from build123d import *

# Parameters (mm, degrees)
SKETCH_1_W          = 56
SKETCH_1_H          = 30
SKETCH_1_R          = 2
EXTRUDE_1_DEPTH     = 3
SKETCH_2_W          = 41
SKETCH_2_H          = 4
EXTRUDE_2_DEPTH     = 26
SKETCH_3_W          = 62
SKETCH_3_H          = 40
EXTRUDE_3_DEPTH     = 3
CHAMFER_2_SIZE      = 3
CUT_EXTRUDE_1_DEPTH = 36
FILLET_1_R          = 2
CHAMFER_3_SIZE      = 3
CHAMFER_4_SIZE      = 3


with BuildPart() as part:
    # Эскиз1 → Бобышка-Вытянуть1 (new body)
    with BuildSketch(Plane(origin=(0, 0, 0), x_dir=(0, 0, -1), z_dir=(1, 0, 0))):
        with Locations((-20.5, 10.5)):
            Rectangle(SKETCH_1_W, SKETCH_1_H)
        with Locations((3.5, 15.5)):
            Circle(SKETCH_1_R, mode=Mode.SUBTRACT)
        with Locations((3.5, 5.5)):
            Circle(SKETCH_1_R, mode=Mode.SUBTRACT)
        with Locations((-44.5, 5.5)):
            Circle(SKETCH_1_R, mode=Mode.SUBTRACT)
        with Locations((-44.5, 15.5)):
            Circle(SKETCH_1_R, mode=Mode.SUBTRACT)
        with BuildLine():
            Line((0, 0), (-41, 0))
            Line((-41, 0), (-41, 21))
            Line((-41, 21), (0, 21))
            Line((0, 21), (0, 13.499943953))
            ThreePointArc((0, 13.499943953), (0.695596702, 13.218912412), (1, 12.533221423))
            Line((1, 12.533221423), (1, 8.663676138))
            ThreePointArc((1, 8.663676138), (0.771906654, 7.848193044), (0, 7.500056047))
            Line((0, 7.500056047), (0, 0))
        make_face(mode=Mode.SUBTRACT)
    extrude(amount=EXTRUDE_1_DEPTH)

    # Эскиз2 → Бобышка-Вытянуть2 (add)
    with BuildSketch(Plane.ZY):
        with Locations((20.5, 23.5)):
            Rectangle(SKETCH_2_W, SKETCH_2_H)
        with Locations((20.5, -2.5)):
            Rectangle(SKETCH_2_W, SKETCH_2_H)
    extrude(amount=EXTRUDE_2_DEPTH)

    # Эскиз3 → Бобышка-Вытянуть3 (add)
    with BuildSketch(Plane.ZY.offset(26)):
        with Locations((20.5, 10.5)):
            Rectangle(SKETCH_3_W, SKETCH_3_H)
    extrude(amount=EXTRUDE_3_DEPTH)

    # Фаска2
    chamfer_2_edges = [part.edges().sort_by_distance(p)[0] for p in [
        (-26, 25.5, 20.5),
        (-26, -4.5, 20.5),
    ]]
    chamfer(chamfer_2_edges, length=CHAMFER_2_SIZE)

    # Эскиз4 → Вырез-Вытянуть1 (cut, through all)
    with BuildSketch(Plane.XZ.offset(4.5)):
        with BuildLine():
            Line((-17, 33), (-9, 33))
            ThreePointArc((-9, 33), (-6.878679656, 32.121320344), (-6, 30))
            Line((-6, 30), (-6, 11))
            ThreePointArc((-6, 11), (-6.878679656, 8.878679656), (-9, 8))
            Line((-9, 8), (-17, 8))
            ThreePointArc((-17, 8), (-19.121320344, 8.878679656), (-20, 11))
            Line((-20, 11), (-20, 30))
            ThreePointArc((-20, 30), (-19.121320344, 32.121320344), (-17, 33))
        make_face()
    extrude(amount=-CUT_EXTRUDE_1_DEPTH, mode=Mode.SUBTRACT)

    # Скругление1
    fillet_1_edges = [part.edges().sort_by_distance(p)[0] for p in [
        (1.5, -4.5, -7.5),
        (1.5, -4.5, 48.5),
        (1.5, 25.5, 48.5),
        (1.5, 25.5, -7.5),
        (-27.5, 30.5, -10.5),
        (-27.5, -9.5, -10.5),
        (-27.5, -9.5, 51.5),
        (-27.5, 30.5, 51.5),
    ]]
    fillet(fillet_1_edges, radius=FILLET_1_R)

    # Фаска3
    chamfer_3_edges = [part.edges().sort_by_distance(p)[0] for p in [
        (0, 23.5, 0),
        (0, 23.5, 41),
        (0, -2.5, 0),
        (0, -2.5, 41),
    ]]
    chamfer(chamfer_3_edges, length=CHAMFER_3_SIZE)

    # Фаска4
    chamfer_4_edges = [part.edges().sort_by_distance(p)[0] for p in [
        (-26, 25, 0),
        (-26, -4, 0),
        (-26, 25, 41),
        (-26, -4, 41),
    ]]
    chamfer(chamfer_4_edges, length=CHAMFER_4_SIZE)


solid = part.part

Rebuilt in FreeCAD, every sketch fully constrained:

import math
import FreeCAD as App
import Part
import Sketcher
from FreeCAD import Vector
Q = App.Units.Quantity


def edges_at(feature, points):
    """Names of the edges that pass closest to the given points."""
    edges = feature.Shape.Edges
    near = lambda p: min(range(len(edges)), key=lambda i: edges[i].distToShape(Part.Vertex(*p))[0])
    return sorted({f"Edge{near(p) + 1}" for p in points})


def add_polygon(sketch, points):
    """Adds a closed chain of lines whose ends are joined by coincident constraints."""
    first, n = sketch.GeometryCount, len(points)
    for a, b in zip(points, points[1:] + points[:1]):
        sketch.addGeometry(Part.LineSegment(App.Vector(*a, 0), App.Vector(*b, 0)), False)
    for i in range(n):
        sketch.addConstraint(Sketcher.Constraint("Coincident", first + i, 2, first + (i + 1) % n, 1))

doc = App.newDocument("Part")
params = doc.addObject("Spreadsheet::Sheet", "Params")
for row, (alias, value) in enumerate([
    ("sketch1_diameter", "4 mm"),
    ("sketch1_radius", "1 mm"),
    ("sketch1_width", "30 mm"),
    ("sketch1_width2", "21 mm"),
    ("sketch1_height", "56 mm"),
    ("pad1_length", "3 mm"),
    ("sketch2_width", "4 mm"),
    ("sketch2_height", "41 mm"),
    ("pad2_length", "26 mm"),
    ("sketch3_width", "40 mm"),
    ("sketch3_height", "62 mm"),
    ("pad3_length", "3 mm"),
    ("chamfer_size", "3 mm"),
    ("sketch4_radius", "3 mm"),
    ("sketch4_width", "8 mm"),
    ("sketch4_height", "19 mm"),
    ("fillet_radius", "2 mm"),
    ("chamfer2_size", "3 mm"),
    ("chamfer3_size", "3 mm"),
], start=1):
    params.set(f"A{row}", alias)
    params.set(f"B{row}", "=" + value)
    params.setAlias(f"B{row}", alias)

body = doc.addObject("PartDesign::Body", "Body")

sketch1 = body.newObject("Sketcher::SketchObject", "Sketch")
sketch1.AttachmentSupport = (doc.getObject("YZ_Plane"), [""])
sketch1.MapMode = "FlatFace"
add_polygon(sketch1, [(25.5, 48.5), (-4.5, 48.5), (-4.5, -7.5), (25.5, -7.5)])
sketch1.addGeometry(Part.Circle(Vector(5.5, 44.5, 0), Vector(0, 0, 1), 2), False)
sketch1.addGeometry(Part.Circle(Vector(5.5, -3.5, 0), Vector(0, 0, 1), 2), False)
sketch1.addGeometry(Part.Circle(Vector(15.5, 44.5, 0), Vector(0, 0, 1), 2), False)
sketch1.addGeometry(Part.LineSegment(Vector(7.5, 0, 0), Vector(0, 0, 0)), False)
sketch1.addGeometry(Part.LineSegment(Vector(0, 0, 0), Vector(0, 41, 0)), False)
sketch1.addGeometry(Part.LineSegment(Vector(0, 41, 0), Vector(21, 41, 0)), False)
sketch1.addGeometry(Part.LineSegment(Vector(21, 41, 0), Vector(21, 0, 0)), False)
sketch1.addGeometry(Part.LineSegment(Vector(21, 0, 0), Vector(13.5, 0, 0)), False)
sketch1.addGeometry(Part.ArcOfCircle(Part.Circle(Vector(12.5, 0, 0), Vector(0, 0, 1), 1), math.radians(-88), math.radians(0)), False)
sketch1.addGeometry(Part.LineSegment(Vector(12.5, -1, 0), Vector(8.7, -1, 0)), False)
sketch1.addGeometry(Part.ArcOfCircle(Part.Circle(Vector(8.5, 0, 0), Vector(0, 0, 1), 1), math.radians(179), math.radians(279)), False)
sketch1.addGeometry(Part.Circle(Vector(15.5, -3.5, 0), Vector(0, 0, 1), 2), False)
sketch1.addConstraint([
    Sketcher.Constraint("Coincident", 7, 2, 8, 1),
    Sketcher.Constraint("Coincident", 8, 2, 9, 1),
    Sketcher.Constraint("Coincident", 9, 2, 10, 1),
    Sketcher.Constraint("Coincident", 10, 2, 11, 1),
    Sketcher.Constraint("Coincident", 11, 2, 12, 2),
    Sketcher.Constraint("Coincident", 12, 1, 13, 1),
    Sketcher.Constraint("Coincident", 13, 2, 14, 2),
    Sketcher.Constraint("Coincident", 14, 1, 7, 1),
    Sketcher.Constraint("Horizontal", 0),
    Sketcher.Constraint("Vertical", 1),
    Sketcher.Constraint("Horizontal", 2),
    Sketcher.Constraint("Vertical", 3),
    Sketcher.Constraint("Horizontal", 7),
    Sketcher.Constraint("Vertical", 8),
    Sketcher.Constraint("Horizontal", 9),
    Sketcher.Constraint("Vertical", 10),
    Sketcher.Constraint("Horizontal", 11),
    Sketcher.Constraint("Horizontal", 13),
    Sketcher.Constraint("Coincident", 7, 2, -1, 1),
    Sketcher.Constraint("Equal", 4, 5),
    Sketcher.Constraint("Equal", 5, 6),
    Sketcher.Constraint("Equal", 12, 14),
    Sketcher.Constraint("Equal", 6, 15),
    Sketcher.Constraint("PointOnObject", 10, 2, -1),
    Sketcher.Constraint("Horizontal", 4, 3, 6, 3),
    Sketcher.Constraint("Horizontal", 5, 3, 15, 3),
    Sketcher.Constraint("Vertical", 4, 3, 5, 3),
    Sketcher.Constraint("Vertical", 6, 3, 15, 3),
    Sketcher.Constraint("Equal", 7, 11),
    Sketcher.Constraint("Diameter", 4, Q("4 mm")),
    Sketcher.Constraint("Radius", 12, Q("1 mm")),
    Sketcher.Constraint("DistanceX", 0, 2, 0, 1, Q("30 mm")),
    Sketcher.Constraint("DistanceX", 9, 1, 9, 2, Q("21 mm")),
    Sketcher.Constraint("DistanceY", 1, 2, 1, 1, Q("56 mm")),
    Sketcher.Constraint("DistanceY", 8, 1, 8, 2, Q("41 mm")),
    Sketcher.Constraint("DistanceY", 12, 1, -1, 1, Q("1 mm")),
    Sketcher.Constraint("DistanceY", 5, 3, 4, 3, Q("48 mm")),
    Sketcher.Constraint("DistanceX", 4, 3, 6, 3, Q("10 mm")),
    Sketcher.Constraint("DistanceX", 0, 2, 4, 3, Q("10 mm")),
    Sketcher.Constraint("DistanceY", 4, 3, 0, 2, Q("4 mm")),
    Sketcher.Constraint("DistanceX", -1, 1, 4, 3, Q("5.5 mm")),
    Sketcher.Constraint("DistanceY", -1, 1, 4, 3, Q("44.5 mm")),
    Sketcher.Constraint("DistanceX", 7, 2, 7, 1, Q("7.500056 mm")),
    Sketcher.Constraint("DistanceX", 13, 2, 13, 1, Q("3.869545 mm")),
    Sketcher.Constraint("DistanceY", 14, 3, -1, 1, Q("0.013492 mm")),
])
sketch1.setExpression("Constraints[33]", "Params.sketch1_diameter")
sketch1.setExpression("Constraints[34]", "Params.sketch1_radius")
sketch1.setExpression("Constraints[35]", "Params.sketch1_width")
sketch1.setExpression("Constraints[36]", "Params.sketch1_width2")
sketch1.setExpression("Constraints[37]", "Params.sketch1_height")
pad1 = body.newObject("PartDesign::Pad", "Pad")
pad1.Profile = sketch1
pad1.setExpression("Length", "Params.pad1_length")

sketch2 = body.newObject("Sketcher::SketchObject", "Sketch001")
sketch2.AttachmentSupport = (doc.getObject("YZ_Plane"), [""])
sketch2.MapMode = "FlatFace"
add_polygon(sketch2, [(25.5, 0), (21.5, 0), (21.5, 41), (25.5, 41)])
add_polygon(sketch2, [(-0.5, 0), (-4.5, 0), (-4.5, 41), (-0.5, 41)])
sketch2.addConstraint([
    Sketcher.Constraint("Horizontal", 0),
    Sketcher.Constraint("Vertical", 1),
    Sketcher.Constraint("Horizontal", 2),
    Sketcher.Constraint("Vertical", 3),
    Sketcher.Constraint("Horizontal", 4),
    Sketcher.Constraint("Vertical", 5),
    Sketcher.Constraint("Horizontal", 6),
    Sketcher.Constraint("Vertical", 7),
    Sketcher.Constraint("PointOnObject", 0, 2, -1),
    Sketcher.Constraint("PointOnObject", 4, 2, -1),
    Sketcher.Constraint("Horizontal", 2, 2, 5, 2),
    Sketcher.Constraint("Equal", 2, 4),
    Sketcher.Constraint("DistanceX", 0, 2, 0, 1, Q("4 mm")),
    Sketcher.Constraint("DistanceY", 1, 1, 1, 2, Q("41 mm")),
    Sketcher.Constraint("DistanceX", 4, 2, 0, 2, Q("26 mm")),
    Sketcher.Constraint("DistanceX", -1, 1, 0, 2, Q("21.5 mm")),
])
sketch2.setExpression("Constraints[20]", "Params.sketch2_width")
sketch2.setExpression("Constraints[21]", "Params.sketch2_height")
pad2 = body.newObject("PartDesign::Pad", "Pad001")
pad2.Profile = sketch2
pad2.setExpression("Length", "Params.pad2_length")
pad2.Reversed = True

sketch3 = body.newObject("Sketcher::SketchObject", "Sketch002")
sketch3.AttachmentSupport = (doc.getObject("YZ_Plane"), [""])
sketch3.MapMode = "FlatFace"
sketch3.AttachmentOffset = App.Placement(Vector(0, 0, -26), App.Rotation())
add_polygon(sketch3, [(30, -10), (-10, -10), (-10, 52), (30, 52)])
sketch3.addConstraint([
    Sketcher.Constraint("Horizontal", 0),
    Sketcher.Constraint("Vertical", 1),
    Sketcher.Constraint("Horizontal", 2),
    Sketcher.Constraint("Vertical", 3),
    Sketcher.Constraint("DistanceX", 0, 2, 0, 1, Q("40 mm")),
    Sketcher.Constraint("DistanceY", 1, 1, 1, 2, Q("62 mm")),
    Sketcher.Constraint("DistanceX", 0, 2, -1, 1, Q("9.5 mm")),
    Sketcher.Constraint("DistanceY", 0, 2, -1, 1, Q("10.5 mm")),
])
sketch3.setExpression("Constraints[8]", "Params.sketch3_width")
sketch3.setExpression("Constraints[9]", "Params.sketch3_height")
pad3 = body.newObject("PartDesign::Pad", "Pad002")
pad3.Profile = sketch3
pad3.setExpression("Length", "Params.pad3_length")
pad3.Reversed = True
doc.recompute()

chamfer = body.newObject("PartDesign::Chamfer", "Chamfer")
chamfer.Base = (pad3, edges_at(pad3, [(-26, 25.5, 20.5), (-26, -4.5, 20.5)]))
chamfer.setExpression("Size", "Params.chamfer_size")

sketch4 = body.newObject("Sketcher::SketchObject", "Sketch003")
sketch4.AttachmentSupport = (doc.getObject("XZ_Plane"), [""])
sketch4.MapMode = "FlatFace"
sketch4.AttachmentOffset = App.Placement(Vector(0, 0, 4.5), App.Rotation())
sketch4.addGeometry([
    Part.LineSegment(Vector(-9, 33, 0), Vector(-17, 33, 0)),
    Part.ArcOfCircle(Part.Circle(Vector(-17, 30, 0), Vector(0, 0, 1), 3), math.radians(90), math.radians(180)),
    Part.LineSegment(Vector(-20, 30, 0), Vector(-20, 11, 0)),
    Part.ArcOfCircle(Part.Circle(Vector(-17, 11, 0), Vector(0, 0, 1), 3), math.radians(180), math.radians(270)),
    Part.LineSegment(Vector(-17, 8, 0), Vector(-9, 8, 0)),
    Part.ArcOfCircle(Part.Circle(Vector(-9, 11, 0), Vector(0, 0, 1), 3), math.radians(-90), math.radians(0)),
    Part.LineSegment(Vector(-6, 11, 0), Vector(-6, 30, 0)),
    Part.ArcOfCircle(Part.Circle(Vector(-9, 30, 0), Vector(0, 0, 1), 3), math.radians(0), math.radians(90)),
], False)
sketch4.addConstraint([
    Sketcher.Constraint("Tangent", 0, 2, 1, 1),
    Sketcher.Constraint("Tangent", 1, 2, 2, 1),
    Sketcher.Constraint("Tangent", 2, 2, 3, 1),
    Sketcher.Constraint("Tangent", 3, 2, 4, 1),
    Sketcher.Constraint("Tangent", 4, 2, 5, 1),
    Sketcher.Constraint("Tangent", 5, 2, 6, 1),
    Sketcher.Constraint("Tangent", 6, 2, 7, 1),
    Sketcher.Constraint("Tangent", 7, 2, 0, 1),
    Sketcher.Constraint("Horizontal", 0),
    Sketcher.Constraint("Vertical", 2),
    Sketcher.Constraint("Horizontal", 4),
    Sketcher.Constraint("Vertical", 6),
    Sketcher.Constraint("Equal", 1, 3),
    Sketcher.Constraint("Equal", 3, 5),
    Sketcher.Constraint("Equal", 5, 7),
    Sketcher.Constraint("Radius", 1, Q("3 mm")),
    Sketcher.Constraint("DistanceX", 0, 2, 0, 1, Q("8 mm")),
    Sketcher.Constraint("DistanceY", 2, 2, 2, 1, Q("19 mm")),
    Sketcher.Constraint("DistanceX", 1, 3, -1, 1, Q("17 mm")),
    Sketcher.Constraint("DistanceY", -1, 1, 1, 3, Q("30 mm")),
])
sketch4.setExpression("Constraints[15]", "Params.sketch4_radius")
sketch4.setExpression("Constraints[16]", "Params.sketch4_width")
sketch4.setExpression("Constraints[17]", "Params.sketch4_height")
pocket1 = body.newObject("PartDesign::Pocket", "Pocket")
pocket1.Profile = sketch4
pocket1.Type = "ThroughAll"
doc.recompute()

fillet = body.newObject("PartDesign::Fillet", "Fillet")
fillet.Base = (pocket1, edges_at(pocket1, [
    (1.5, -4.5, -7.5),
    (1.5, -4.5, 48.5),
    (1.5, 25.5, 48.5),
    (1.5, 25.5, -7.5),
    (-27.5, 30.5, -10.5),
    (-27.5, -9.5, -10.5),
    (-27.5, -9.5, 51.5),
    (-27.5, 30.5, 51.5),
]))
fillet.setExpression("Radius", "Params.fillet_radius")
doc.recompute()

chamfer2 = body.newObject("PartDesign::Chamfer", "Chamfer001")
chamfer2.Base = (fillet, edges_at(fillet, [
    (0, 23.5, 0),
    (0, 23.5, 41),
    (0, -2.5, 0),
    (0, -2.5, 41),
]))
chamfer2.setExpression("Size", "Params.chamfer2_size")
doc.recompute()

chamfer3 = body.newObject("PartDesign::Chamfer", "Chamfer002")
chamfer3.Base = (chamfer2, edges_at(chamfer2, [
    (-26, 25, 0),
    (-26, -4, 0),
    (-26, 25, 41),
    (-26, -4, 41),
]))
chamfer3.setExpression("Size", "Params.chamfer3_size")

doc.recompute()
